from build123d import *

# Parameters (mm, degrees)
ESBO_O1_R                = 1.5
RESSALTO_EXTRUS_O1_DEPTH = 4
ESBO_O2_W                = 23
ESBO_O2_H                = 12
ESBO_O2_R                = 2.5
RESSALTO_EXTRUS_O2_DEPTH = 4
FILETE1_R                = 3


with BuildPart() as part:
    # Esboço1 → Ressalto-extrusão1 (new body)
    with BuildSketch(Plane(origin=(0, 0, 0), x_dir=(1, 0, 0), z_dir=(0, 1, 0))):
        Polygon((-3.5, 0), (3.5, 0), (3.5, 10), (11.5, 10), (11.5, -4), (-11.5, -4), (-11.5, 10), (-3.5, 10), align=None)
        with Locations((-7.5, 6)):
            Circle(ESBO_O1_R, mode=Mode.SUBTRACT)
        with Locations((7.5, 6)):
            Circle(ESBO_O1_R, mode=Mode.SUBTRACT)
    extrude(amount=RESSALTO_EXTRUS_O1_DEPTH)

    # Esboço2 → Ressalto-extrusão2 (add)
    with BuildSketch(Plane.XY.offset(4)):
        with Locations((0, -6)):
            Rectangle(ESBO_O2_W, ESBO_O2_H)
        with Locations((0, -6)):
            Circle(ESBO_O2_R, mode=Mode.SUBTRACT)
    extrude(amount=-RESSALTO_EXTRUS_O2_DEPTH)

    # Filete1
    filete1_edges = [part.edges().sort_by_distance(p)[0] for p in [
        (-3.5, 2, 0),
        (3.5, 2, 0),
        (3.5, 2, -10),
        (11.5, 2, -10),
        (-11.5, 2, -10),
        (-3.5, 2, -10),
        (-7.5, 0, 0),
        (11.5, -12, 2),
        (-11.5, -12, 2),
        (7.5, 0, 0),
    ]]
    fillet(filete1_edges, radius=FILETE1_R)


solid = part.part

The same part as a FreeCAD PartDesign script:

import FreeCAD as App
import Part
import Sketcher
Q = App.Units.Quantity


def edges_at(feature, points):
    """Names of the edges that pass closest to the given points."""
    edges = feature.Shape.Edges
    near = lambda p: min(range(len(edges)), key=lambda i: edges[i].distToShape(Part.Vertex(*p))[0])
    return sorted({f"Edge{near(p) + 1}" for p in points})

doc = App.newDocument("Part")
body = doc.addObject("PartDesign::Body", "Body")

sketch1 = body.newObject("Sketcher::SketchObject", "Sketch")
sketch1.AttachmentSupport = (doc.getObject("XZ_Plane"), [""])
sketch1.MapMode = "FlatFace"
sketch1.addGeometry([
    Part.LineSegment(App.Vector(3.5, 0, 0), App.Vector(-3.5, 0, 0)),
    Part.LineSegment(App.Vector(-3.5, 0, 0), App.Vector(-3.5, -10, 0)),
    Part.LineSegment(App.Vector(-3.5, -10, 0), App.Vector(-11.5, -10, 0)),
    Part.LineSegment(App.Vector(-11.5, -10, 0), App.Vector(-11.5, 4, 0)),
    Part.LineSegment(App.Vector(-11.5, 4, 0), App.Vector(11.5, 4, 0)),
    Part.LineSegment(App.Vector(11.5, 4, 0), App.Vector(11.5, -10, 0)),
    Part.LineSegment(App.Vector(11.5, -10, 0), App.Vector(3.5, -10, 0)),
    Part.LineSegment(App.Vector(3.5, -10, 0), App.Vector(3.5, 0, 0)),
    Part.Circle(App.Vector(7.5, -6, 0), App.Vector(0, 0, 1), 1.5),
    Part.Circle(App.Vector(-7.5, -6, 0), App.Vector(0, 0, 1), 1.5),
], False)
sketch1.addConstraint([
    Sketcher.Constraint("Coincident", 0, 2, 1, 1),
    Sketcher.Constraint("Coincident", 1, 2, 2, 1),
    Sketcher.Constraint("Coincident", 2, 2, 3, 1),
    Sketcher.Constraint("Coincident", 3, 2, 4, 1),
    Sketcher.Constraint("Coincident", 4, 2, 5, 1),
    Sketcher.Constraint("Coincident", 5, 2, 6, 1),
    Sketcher.Constraint("Coincident", 6, 2, 7, 1),
    Sketcher.Constraint("Coincident", 7, 2, 0, 1),
    Sketcher.Constraint("Horizontal", 0),
    Sketcher.Constraint("Vertical", 1),
    Sketcher.Constraint("Horizontal", 2),
    Sketcher.Constraint("Vertical", 3),
    Sketcher.Constraint("Horizontal", 4),
    Sketcher.Constraint("Vertical", 5),
    Sketcher.Constraint("Horizontal", 6),
    Sketcher.Constraint("Vertical", 7),
    Sketcher.Constraint("Equal", 8, 9),
    Sketcher.Constraint("Symmetric", 0, 2, 7, 2, -1, 1),
    Sketcher.Constraint("Symmetric", 8, 3, 9, 3, -2),
    Sketcher.Constraint("Symmetric", 2, 2, 5, 2, -2),
    Sketcher.Constraint("Diameter", 8, Q("3 mm")),
    Sketcher.Constraint("DistanceX", 0, 2, 0, 1, Q("7 mm")),
    Sketcher.Constraint("DistanceX", 2, 2, 2, 1, Q("8 mm")),
    Sketcher.Constraint("DistanceY", 1, 2, 1, 1, Q("10 mm")),
    Sketcher.Constraint("DistanceY", 3, 1, 3, 2, Q("14 mm")),
    Sketcher.Constraint("DistanceY", 8, 3, -1, 1, Q("6 mm")),
    Sketcher.Constraint("DistanceX", 9, 3, 8, 3, Q("15 mm")),
])
pad1 = body.newObject("PartDesign::Pad", "Pad")
pad1.Profile = sketch1
pad1.Length = 4
pad1.Reversed = True

sketch2 = body.newObject("Sketcher::SketchObject", "Sketch001")
sketch2.AttachmentSupport = (doc.getObject("XY_Plane"), [""])
sketch2.MapMode = "FlatFace"
sketch2.AttachmentOffset = App.Placement(App.Vector(0, 0, 4), App.Rotation())
sketch2.addGeometry([
    Part.LineSegment(App.Vector(-11.5, 0, 0), App.Vector(-11.5, -12, 0)),
    Part.LineSegment(App.Vector(-11.5, -12, 0), App.Vector(11.5, -12, 0)),
    Part.LineSegment(App.Vector(11.5, -12, 0), App.Vector(11.5, 0, 0)),
    Part.LineSegment(App.Vector(11.5, 0, 0), App.Vector(-11.5, 0, 0)),
    Part.Circle(App.Vector(0, -6, 0), App.Vector(0, 0, 1), 2.5),
], False)
sketch2.addConstraint([
    Sketcher.Constraint("Coincident", 0, 2, 1, 1),
    Sketcher.Constraint("Coincident", 1, 2, 2, 1),
    Sketcher.Constraint("Coincident", 2, 2, 3, 1),
    Sketcher.Constraint("Coincident", 3, 2, 0, 1),
    Sketcher.Constraint("Vertical", 0),
    Sketcher.Constraint("Horizontal", 1),
    Sketcher.Constraint("Vertical", 2),
    Sketcher.Constraint("Horizontal", 3),
    Sketcher.Constraint("Symmetric", 2, 2, 3, 2, -1, 1),
    Sketcher.Constraint("PointOnObject", 4, 3, -2),
    Sketcher.Constraint("Diameter", 4, Q("5 mm")),
    Sketcher.Constraint("DistanceX", 1, 1, 1, 2, Q("23 mm")),
    Sketcher.Constraint("DistanceY", 0, 2, 0, 1, Q("12 mm")),
    Sketcher.Constraint("DistanceY", 4, 3, -1, 1, Q("6 mm")),
])
pad2 = body.newObject("PartDesign::Pad", "Pad001")
pad2.Profile = sketch2
pad2.Length = 4
pad2.Reversed = True
doc.recompute()

fillet = body.newObject("PartDesign::Fillet", "Fillet")
fillet.Base = (pad2, edges_at(pad2, [
    (-3.5, 2, 0),
    (3.5, 2, 0),
    (3.5, 2, -10),
    (11.5, 2, -10),
    (-11.5, 2, -10),
    (-3.5, 2, -10),
    (-7.5, 0, 0),
    (11.5, -12, 2),
    (-11.5, -12, 2),
    (7.5, 0, 0),
]))
fillet.Radius = 3

doc.recompute()
